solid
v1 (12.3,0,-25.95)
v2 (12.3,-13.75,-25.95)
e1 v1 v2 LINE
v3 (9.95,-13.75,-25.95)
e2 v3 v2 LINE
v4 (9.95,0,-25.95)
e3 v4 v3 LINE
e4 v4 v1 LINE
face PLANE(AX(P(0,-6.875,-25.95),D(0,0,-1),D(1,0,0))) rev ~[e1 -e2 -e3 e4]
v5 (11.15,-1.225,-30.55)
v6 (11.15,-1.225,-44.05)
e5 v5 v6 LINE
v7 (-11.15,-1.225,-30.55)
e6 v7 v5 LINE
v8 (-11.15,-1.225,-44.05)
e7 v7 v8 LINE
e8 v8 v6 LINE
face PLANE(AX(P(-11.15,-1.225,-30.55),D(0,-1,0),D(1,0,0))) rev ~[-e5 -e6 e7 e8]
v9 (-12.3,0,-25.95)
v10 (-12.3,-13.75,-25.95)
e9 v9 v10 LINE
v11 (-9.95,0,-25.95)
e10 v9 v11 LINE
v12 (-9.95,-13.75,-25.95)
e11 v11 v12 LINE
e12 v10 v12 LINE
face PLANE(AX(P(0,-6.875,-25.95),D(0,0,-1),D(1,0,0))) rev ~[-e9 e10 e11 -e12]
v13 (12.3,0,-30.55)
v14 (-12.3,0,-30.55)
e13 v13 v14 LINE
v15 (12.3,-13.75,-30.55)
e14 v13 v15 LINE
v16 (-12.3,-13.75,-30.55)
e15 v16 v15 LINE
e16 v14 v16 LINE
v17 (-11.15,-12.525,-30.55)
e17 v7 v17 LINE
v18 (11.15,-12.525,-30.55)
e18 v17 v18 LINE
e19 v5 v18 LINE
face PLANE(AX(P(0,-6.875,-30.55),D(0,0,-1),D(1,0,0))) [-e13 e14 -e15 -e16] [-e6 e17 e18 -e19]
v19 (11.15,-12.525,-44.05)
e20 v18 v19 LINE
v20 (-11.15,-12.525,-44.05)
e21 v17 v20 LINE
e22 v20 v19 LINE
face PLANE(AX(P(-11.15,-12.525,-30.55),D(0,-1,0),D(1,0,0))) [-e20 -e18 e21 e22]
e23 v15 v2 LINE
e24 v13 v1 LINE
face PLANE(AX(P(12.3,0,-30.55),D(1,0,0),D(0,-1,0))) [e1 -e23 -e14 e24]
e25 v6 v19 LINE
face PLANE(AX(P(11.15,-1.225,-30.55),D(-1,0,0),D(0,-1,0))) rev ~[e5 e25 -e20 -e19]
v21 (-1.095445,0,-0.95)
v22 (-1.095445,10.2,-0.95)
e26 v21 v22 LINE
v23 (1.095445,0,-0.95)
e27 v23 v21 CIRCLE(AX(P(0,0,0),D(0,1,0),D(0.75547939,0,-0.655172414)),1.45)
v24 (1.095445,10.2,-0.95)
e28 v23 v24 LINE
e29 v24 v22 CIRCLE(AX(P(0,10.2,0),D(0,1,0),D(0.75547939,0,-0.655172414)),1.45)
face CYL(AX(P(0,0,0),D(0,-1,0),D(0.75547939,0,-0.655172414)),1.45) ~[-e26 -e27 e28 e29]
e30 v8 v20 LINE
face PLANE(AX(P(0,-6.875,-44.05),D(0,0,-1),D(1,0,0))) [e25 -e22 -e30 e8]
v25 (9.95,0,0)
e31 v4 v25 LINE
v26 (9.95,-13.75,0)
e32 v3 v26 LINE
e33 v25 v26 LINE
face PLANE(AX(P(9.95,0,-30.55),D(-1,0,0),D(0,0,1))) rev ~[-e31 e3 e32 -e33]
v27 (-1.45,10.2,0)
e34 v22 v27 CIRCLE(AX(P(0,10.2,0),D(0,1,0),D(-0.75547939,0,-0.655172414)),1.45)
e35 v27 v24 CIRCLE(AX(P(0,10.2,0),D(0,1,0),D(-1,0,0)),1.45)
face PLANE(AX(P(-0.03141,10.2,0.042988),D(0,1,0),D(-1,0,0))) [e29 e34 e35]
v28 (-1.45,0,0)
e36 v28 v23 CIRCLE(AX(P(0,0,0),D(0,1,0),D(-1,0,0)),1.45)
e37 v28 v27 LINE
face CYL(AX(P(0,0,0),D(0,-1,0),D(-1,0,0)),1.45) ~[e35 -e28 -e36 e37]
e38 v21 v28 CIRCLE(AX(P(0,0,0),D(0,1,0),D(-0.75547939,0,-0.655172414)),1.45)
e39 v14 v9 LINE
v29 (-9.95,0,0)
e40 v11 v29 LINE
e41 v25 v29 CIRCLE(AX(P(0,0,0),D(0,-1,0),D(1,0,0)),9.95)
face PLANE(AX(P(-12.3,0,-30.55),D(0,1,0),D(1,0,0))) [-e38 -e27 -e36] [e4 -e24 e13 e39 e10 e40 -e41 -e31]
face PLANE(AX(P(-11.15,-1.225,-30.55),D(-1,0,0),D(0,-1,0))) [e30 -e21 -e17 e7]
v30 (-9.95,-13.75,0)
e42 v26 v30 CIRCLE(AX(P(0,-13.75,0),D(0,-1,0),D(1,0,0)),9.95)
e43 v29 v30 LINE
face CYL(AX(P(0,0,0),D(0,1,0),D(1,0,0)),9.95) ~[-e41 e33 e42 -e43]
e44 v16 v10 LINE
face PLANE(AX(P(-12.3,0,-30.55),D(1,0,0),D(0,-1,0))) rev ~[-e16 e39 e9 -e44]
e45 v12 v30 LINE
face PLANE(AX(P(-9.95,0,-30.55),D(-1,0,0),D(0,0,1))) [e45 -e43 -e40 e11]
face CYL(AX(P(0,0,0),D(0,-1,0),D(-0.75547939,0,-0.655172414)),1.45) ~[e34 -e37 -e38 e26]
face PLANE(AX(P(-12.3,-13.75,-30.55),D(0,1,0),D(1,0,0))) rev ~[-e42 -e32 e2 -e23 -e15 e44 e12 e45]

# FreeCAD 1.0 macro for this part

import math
import FreeCAD as App
import Part
import Sketcher
Q = App.Units.Quantity


def add_polygon(sketch, points):
    """Adds a closed chain of lines whose ends are joined by coincident constraints."""
    first, n = sketch.GeometryCount, len(points)
    for a, b in zip(points, points[1:] + points[:1]):
        sketch.addGeometry(Part.LineSegment(App.Vector(*a, 0), App.Vector(*b, 0)), False)
    for i in range(n):
        sketch.addConstraint(Sketcher.Constraint("Coincident", first + i, 2, first + (i + 1) % n, 1))

doc = App.newDocument("Part")
params = doc.addObject("Spreadsheet::Sheet", "Params")
for row, (alias, value) in enumerate([
    ("sketch1_radius", "9.95 mm"),
    ("sketch1_height", "30.55 mm"),
    ("pad1_length", "13.75 mm"),
    ("sketch2_radius", "1.45 mm"),
    ("pad2_length", "10.2 mm"),
    ("sketch3_width", "24.6 mm"),
    ("sketch3_height", "13.75 mm"),
    ("pad3_length", "4.6 mm"),
    ("sketch4_width", "22.3 mm"),
    ("sketch4_height", "11.3 mm"),
    ("pad4_length", "13.5 mm"),
], start=1):
    params.set(f"A{row}", alias)
    params.set(f"B{row}", "=" + value)
    params.setAlias(f"B{row}", alias)

body = doc.addObject("PartDesign::Body", "Body")

# Sketch on XZ plane
sketch1 = doc.addObject("Sketcher::SketchObject", "Sketch")
body.addObject(sketch1)
sketch1.AttachmentSupport = (doc.XZ_Plane, [""])
sketch1.MapMode = "FlatFace"
sketch1.addGeometry([
    Part.ArcOfCircle(Part.Circle(App.Vector(0, 0, 0), App.Vector(0, 0, 1), 10), math.radians(0), math.radians(180)),
    Part.LineSegment(App.Vector(-10, 0, 0), App.Vector(-10, -31, 0)),
    Part.LineSegment(App.Vector(-10, -31, 0), App.Vector(10, -31, 0)),
    Part.LineSegment(App.Vector(10, -31, 0), App.Vector(10, 0, 0)),
], False)
sketch1.addConstraint([
    Sketcher.Constraint("Tangent", 0, 2, 1, 1),
    Sketcher.Constraint("Coincident", 1, 2, 2, 1),
    Sketcher.Constraint("Coincident", 2, 2, 3, 1),
    Sketcher.Constraint("Tangent", 3, 2, 0, 1),
    Sketcher.Constraint("Vertical", 1),
    Sketcher.Constraint("Horizontal", 2),
    Sketcher.Constraint("Vertical", 3),
    Sketcher.Constraint("Coincident", 0, 3, -1, 1),
    Sketcher.Constraint("Radius", 0, Q("9.95 mm")),
    Sketcher.Constraint("DistanceY", 1, 2, 1, 1, Q("30.55 mm")),
])
sketch1.setExpression("Constraints[8]", "Params.sketch1_radius")
sketch1.setExpression("Constraints[9]", "Params.sketch1_height")
pad1 = doc.addObject("PartDesign::Pad", "Pad")
body.addObject(pad1)
pad1.Profile = sketch1
pad1.setExpression("Length", "Params.pad1_length")

# Sketch on XZ plane
sketch2 = doc.addObject("Sketcher::SketchObject", "Sketch001")
body.addObject(sketch2)
sketch2.AttachmentSupport = (doc.XZ_Plane, [""])
sketch2.MapMode = "FlatFace"
sketch2.addGeometry([
    Part.ArcOfCircle(Part.Circle(App.Vector(0, 0, 0), App.Vector(0, 0, 1), 1.4), math.radians(180), math.radians(221)),
    Part.ArcOfCircle(Part.Circle(App.Vector(0, 0, 0), App.Vector(0, 0, 1), 1.4), math.radians(-41), math.radians(180)),
    Part.ArcOfCircle(Part.Circle(App.Vector(0, 0, 0), App.Vector(0, 0, 1), 1.4), math.radians(-139), math.radians(-41)),
], False)
sketch2.addConstraint([
    Sketcher.Constraint("Tangent", 0, 1, 1, 2),
    Sketcher.Constraint("Tangent", 1, 1, 2, 2),
    Sketcher.Constraint("Tangent", 2, 1, 0, 2),
    Sketcher.Constraint("Coincident", 0, 3, -1, 1),
    Sketcher.Constraint("PointOnObject", 0, 1, -1),
    Sketcher.Constraint("Horizontal", 1, 1, 2, 1),
    Sketcher.Constraint("Radius", 0, Q("1.45 mm")),
    Sketcher.Constraint("DistanceY", 1, 1, -1, 1, Q("0.95 mm")),
])
sketch2.setExpression("Constraints[6]", "Params.sketch2_radius")
pad2 = doc.addObject("PartDesign::Pad", "Pad001")
body.addObject(pad2)
pad2.Profile = sketch2
pad2.setExpression("Length", "Params.pad2_length")
pad2.Reversed = True

# Sketch on XY plane
sketch3 = doc.addObject("Sketcher::SketchObject", "Sketch002")
body.addObject(sketch3)
sketch3.AttachmentSupport = (doc.XY_Plane, [""])
sketch3.MapMode = "FlatFace"
sketch3.AttachmentOffset = App.Placement(App.Vector(0, 0, -30.55), App.Rotation())
add_polygon(sketch3, [(-12, -14), (-12, 0), (12, 0), (12, -14)])  # lines 0-3
sketch3.addConstraint([
    Sketcher.Constraint("Vertical", 0),
    Sketcher.Constraint("Horizontal", 1),
    Sketcher.Constraint("Vertical", 2),
    Sketcher.Constraint("Horizontal", 3),
    Sketcher.Constraint("Symmetric", 0, 2, 1, 2, -1, 1),
    Sketcher.Constraint("DistanceX", 1, 1, 1, 2, Q("24.6 mm")),
    Sketcher.Constraint("DistanceY", 0, 1, 0, 2, Q("13.75 mm")),
])
sketch3.setExpression("Constraints[9]", "Params.sketch3_width")
sketch3.setExpression("Constraints[10]", "Params.sketch3_height")
pad3 = doc.addObject("PartDesign::Pad", "Pad002")
body.addObject(pad3)
pad3.Profile = sketch3
pad3.setExpression("Length", "Params.pad3_length")

# Sketch on XY plane
sketch4 = doc.addObject("Sketcher::SketchObject", "Sketch003")
body.addObject(sketch4)
sketch4.AttachmentSupport = (doc.XY_Plane, [""])
sketch4.MapMode = "FlatFace"
sketch4.AttachmentOffset = App.Placement(App.Vector(0, 0, -30.55), App.Rotation())
add_polygon(sketch4, [(-11, -13), (-11, -1), (11, -1), (11, -13)])  # lines 0-3
sketch4.addConstraint([
    Sketcher.Constraint("Vertical", 0),
    Sketcher.Constraint("Horizontal", 1),
    Sketcher.Constraint("Vertical", 2),
    Sketcher.Constraint("Horizontal", 3),
    Sketcher.Constraint("DistanceX", 1, 1, 1, 2, Q("22.3 mm")),
    Sketcher.Constraint("DistanceY", 0, 1, 0, 2, Q("11.3 mm")),
    Sketcher.Constraint("DistanceX", 0, 2, -1, 1, Q("11.15 mm")),
    Sketcher.Constraint("DistanceY", 0, 2, -1, 1, Q("1.225 mm")),
])
sketch4.setExpression("Constraints[8]", "Params.sketch4_width")
sketch4.setExpression("Constraints[9]", "Params.sketch4_height")
pad4 = doc.addObject("PartDesign::Pad", "Pad003")
body.addObject(pad4)
pad4.Profile = sketch4
pad4.setExpression("Length", "Params.pad4_length")
pad4.Reversed = True

doc.recompute()
